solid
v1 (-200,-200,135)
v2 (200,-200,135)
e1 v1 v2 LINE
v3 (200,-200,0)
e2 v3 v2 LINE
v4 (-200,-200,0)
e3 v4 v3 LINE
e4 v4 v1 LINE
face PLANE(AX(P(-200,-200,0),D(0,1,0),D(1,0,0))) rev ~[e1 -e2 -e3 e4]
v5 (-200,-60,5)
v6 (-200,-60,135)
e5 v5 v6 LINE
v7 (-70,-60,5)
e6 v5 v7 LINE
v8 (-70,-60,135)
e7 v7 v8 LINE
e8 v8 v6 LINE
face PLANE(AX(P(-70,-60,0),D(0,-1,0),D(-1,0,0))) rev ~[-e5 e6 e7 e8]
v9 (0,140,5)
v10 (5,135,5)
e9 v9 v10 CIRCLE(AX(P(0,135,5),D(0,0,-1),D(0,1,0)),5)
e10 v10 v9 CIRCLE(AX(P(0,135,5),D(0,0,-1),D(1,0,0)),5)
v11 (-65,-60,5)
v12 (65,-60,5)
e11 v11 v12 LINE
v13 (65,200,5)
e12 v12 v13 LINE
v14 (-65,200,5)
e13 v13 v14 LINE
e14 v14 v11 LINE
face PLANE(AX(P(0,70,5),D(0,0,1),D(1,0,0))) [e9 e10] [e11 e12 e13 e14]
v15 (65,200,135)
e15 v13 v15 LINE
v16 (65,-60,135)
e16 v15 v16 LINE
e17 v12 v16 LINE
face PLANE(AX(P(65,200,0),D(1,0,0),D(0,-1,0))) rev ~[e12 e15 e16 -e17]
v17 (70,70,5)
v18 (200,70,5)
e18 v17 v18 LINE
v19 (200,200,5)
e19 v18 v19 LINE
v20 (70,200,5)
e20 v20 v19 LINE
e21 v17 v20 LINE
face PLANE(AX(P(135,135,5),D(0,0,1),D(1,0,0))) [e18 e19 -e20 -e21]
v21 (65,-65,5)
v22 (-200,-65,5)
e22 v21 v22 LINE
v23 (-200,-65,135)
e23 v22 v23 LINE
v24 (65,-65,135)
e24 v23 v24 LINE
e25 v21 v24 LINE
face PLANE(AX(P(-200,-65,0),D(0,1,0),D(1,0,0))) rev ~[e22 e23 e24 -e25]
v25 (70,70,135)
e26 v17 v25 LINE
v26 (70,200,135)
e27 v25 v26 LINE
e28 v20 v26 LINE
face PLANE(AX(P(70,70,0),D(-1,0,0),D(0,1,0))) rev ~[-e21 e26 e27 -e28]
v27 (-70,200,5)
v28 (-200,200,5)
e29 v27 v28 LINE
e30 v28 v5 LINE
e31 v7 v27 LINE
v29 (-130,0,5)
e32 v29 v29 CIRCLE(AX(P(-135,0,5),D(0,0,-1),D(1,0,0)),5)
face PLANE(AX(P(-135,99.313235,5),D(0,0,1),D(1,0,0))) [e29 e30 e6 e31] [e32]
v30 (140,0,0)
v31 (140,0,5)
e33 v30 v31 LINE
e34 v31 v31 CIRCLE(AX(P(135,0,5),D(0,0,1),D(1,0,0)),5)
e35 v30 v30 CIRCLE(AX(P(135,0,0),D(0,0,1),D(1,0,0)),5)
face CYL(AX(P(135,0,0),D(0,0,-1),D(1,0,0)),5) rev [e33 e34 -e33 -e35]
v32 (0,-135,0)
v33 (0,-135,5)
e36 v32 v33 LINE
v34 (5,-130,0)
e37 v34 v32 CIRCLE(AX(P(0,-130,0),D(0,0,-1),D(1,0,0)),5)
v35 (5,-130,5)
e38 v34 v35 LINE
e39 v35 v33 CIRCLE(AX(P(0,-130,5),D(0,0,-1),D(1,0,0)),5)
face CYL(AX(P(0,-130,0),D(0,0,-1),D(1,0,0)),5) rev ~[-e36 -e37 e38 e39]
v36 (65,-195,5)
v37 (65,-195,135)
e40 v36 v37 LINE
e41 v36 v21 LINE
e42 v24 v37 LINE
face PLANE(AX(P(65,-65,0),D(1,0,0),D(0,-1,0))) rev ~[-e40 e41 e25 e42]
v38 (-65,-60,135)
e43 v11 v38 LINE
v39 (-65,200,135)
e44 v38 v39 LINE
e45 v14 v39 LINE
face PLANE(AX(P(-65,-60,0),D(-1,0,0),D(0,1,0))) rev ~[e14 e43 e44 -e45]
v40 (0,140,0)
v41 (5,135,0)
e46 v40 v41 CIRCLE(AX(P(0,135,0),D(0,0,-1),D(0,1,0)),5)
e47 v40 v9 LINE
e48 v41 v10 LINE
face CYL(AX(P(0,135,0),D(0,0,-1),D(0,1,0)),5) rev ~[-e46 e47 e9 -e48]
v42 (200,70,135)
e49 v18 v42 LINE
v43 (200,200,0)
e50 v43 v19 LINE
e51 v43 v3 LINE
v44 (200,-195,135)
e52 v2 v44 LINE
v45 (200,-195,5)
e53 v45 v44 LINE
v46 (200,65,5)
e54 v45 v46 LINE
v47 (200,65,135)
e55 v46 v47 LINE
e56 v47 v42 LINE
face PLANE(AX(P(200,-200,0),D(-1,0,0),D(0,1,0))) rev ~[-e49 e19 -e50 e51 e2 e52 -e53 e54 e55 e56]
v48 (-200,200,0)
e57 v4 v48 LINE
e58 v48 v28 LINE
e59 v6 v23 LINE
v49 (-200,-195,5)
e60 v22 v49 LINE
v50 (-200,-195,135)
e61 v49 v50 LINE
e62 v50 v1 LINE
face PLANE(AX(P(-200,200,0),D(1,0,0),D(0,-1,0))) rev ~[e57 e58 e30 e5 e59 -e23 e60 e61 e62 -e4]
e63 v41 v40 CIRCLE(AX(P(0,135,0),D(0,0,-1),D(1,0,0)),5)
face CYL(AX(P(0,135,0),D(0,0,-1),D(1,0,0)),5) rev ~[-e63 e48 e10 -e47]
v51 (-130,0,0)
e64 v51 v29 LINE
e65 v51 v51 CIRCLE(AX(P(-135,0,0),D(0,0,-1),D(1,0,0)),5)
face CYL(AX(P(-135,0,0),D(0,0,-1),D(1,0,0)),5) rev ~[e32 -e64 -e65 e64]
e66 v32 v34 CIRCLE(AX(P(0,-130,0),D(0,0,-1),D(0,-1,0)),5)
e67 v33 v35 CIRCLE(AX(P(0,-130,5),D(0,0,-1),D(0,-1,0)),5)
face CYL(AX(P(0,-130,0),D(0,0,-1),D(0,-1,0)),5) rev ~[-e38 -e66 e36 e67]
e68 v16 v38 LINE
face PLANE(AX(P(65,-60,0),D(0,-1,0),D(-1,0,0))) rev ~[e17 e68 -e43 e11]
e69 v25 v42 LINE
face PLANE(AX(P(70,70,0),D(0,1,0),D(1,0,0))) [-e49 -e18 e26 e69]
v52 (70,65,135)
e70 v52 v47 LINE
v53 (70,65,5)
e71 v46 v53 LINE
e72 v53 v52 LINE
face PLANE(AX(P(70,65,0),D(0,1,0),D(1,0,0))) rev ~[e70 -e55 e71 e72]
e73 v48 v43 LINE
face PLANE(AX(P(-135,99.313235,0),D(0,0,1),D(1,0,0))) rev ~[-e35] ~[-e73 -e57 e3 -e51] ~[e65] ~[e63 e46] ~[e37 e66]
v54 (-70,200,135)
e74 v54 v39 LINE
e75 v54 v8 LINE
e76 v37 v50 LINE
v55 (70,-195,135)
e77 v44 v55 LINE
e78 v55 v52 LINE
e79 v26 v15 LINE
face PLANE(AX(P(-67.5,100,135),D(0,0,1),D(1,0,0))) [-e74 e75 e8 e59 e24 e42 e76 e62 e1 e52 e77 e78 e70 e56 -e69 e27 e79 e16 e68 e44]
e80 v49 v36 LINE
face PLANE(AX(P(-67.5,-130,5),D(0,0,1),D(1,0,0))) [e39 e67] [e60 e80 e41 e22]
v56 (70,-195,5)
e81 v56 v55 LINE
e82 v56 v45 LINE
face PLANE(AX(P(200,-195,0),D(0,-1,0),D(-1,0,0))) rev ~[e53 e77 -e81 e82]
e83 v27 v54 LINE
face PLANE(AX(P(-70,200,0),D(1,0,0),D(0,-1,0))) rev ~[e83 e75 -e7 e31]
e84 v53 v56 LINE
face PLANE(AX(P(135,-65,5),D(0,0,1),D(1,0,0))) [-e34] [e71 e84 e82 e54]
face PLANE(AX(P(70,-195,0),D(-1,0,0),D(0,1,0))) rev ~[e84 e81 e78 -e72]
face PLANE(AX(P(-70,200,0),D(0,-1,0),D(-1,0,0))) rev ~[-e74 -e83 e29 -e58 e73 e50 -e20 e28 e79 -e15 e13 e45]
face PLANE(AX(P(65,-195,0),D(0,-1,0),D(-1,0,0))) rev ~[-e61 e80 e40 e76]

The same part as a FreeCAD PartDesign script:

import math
import FreeCAD as App
import Part
import Sketcher


def add_polygon(sketch, points):
    """Adds a closed chain of lines whose ends are joined by coincident constraints."""
    first, n = sketch.GeometryCount, len(points)
    for a, b in zip(points, points[1:] + points[:1]):
        sketch.addGeometry(Part.LineSegment(App.Vector(*a, 0), App.Vector(*b, 0)), False)
    for i in range(n):
        sketch.addConstraint(Sketcher.Constraint("Coincident", first + i, 2, first + (i + 1) % n, 1))

doc = App.newDocument("Part")
body = doc.addObject("PartDesign::Body", "Body")

sketch1 = doc.addObject("Sketcher::SketchObject", "Sketch")
body.addObject(sketch1)
sketch1.AttachmentSupport = (doc.XY_Plane, [""])
sketch1.MapMode = "FlatFace"
add_polygon(sketch1, [(-70, 200), (-70, -60), (-200, -60), (-200, -65), (65, -65), (65, -195), (-200, -195), (-200, -200), (200, -200), (200, -195), (70, -195), (70, 65), (200, 65), (200, 70), (70, 70), (70, 200), (65, 200), (65, -60), (-65, -60), (-65, 200)])
sketch1.addConstraint([
    Sketcher.Constraint("Vertical", 0),
    Sketcher.Constraint("Horizontal", 1),
    Sketcher.Constraint("Vertical", 2),
    Sketcher.Constraint("Horizontal", 3),
    Sketcher.Constraint("Vertical", 4),
    Sketcher.Constraint("Horizontal", 5),
    Sketcher.Constraint("Vertical", 6),
    Sketcher.Constraint("Horizontal", 7),
    Sketcher.Constraint("Vertical", 8),
    Sketcher.Constraint("Horizontal", 9),
    Sketcher.Constraint("Vertical", 10),
    Sketcher.Constraint("Horizontal", 11),
    Sketcher.Constraint("Vertical", 12),
    Sketcher.Constraint("Horizontal", 13),
    Sketcher.Constraint("Vertical", 14),
    Sketcher.Constraint("Horizontal", 15),
    Sketcher.Constraint("Vertical", 16),
    Sketcher.Constraint("Horizontal", 17),
    Sketcher.Constraint("Vertical", 18),
    Sketcher.Constraint("Horizontal", 19),
    Sketcher.Constraint("Symmetric", 2, 2, 11, 2, -1, 1),
    Sketcher.Constraint("Symmetric", 5, 2, 8, 2, -2),
    Sketcher.Constraint("Symmetric", 15, 2, 18, 2, -2),
    Sketcher.Constraint("Horizontal", 1, 2, 16, 2),
    Sketcher.Constraint("Vertical", 2, 2, 5, 2),
    Sketcher.Constraint("Vertical", 10, 2, 13, 2),
    Sketcher.Constraint("Vertical", 4, 2, 15, 2),
    Sketcher.Constraint("Equal", 1, 9),
    Sketcher.Constraint("Equal", 13, 17),
    Sketcher.Constraint("Equal", 19, 2),
    Sketcher.Constraint("Equal", 17, 4),
    Sketcher.Constraint("Equal", 2, 6),
    Sketcher.Constraint("Equal", 0, 10),
    Sketcher.Constraint("Equal", 8, 12),
    Sketcher.Constraint("DistanceX", 1, 2, 1, 1, 130.0),
    Sketcher.Constraint("DistanceX", 3, 1, 3, 2, 265.0),
    Sketcher.Constraint("DistanceY", 0, 2, 0, 1, 260.0),
])
pad1 = doc.addObject("PartDesign::Pad", "Pad")
body.addObject(pad1)
pad1.Profile = sketch1
pad1.Length = 135

sketch2 = doc.addObject("Sketcher::SketchObject", "Sketch001")
body.addObject(sketch2)
sketch2.AttachmentSupport = (doc.XY_Plane, [""])
sketch2.MapMode = "FlatFace"
add_polygon(sketch2, [(-70, 200), (-200, 200), (-200, -60), (-70, -60)])
sketch2.addGeometry(Part.Circle(App.Vector(-135, 0, 0), App.Vector(0, 0, 1), 5), False)
add_polygon(sketch2, [(65, -65), (-200, -65), (-200, -195), (65, -195)])
sketch2.addGeometry(Part.ArcOfCircle(Part.Circle(App.Vector(0, -130, 0), App.Vector(0, 0, 1), 5), math.radians(0), math.radians(270)), False)
sketch2.addGeometry(Part.ArcOfCircle(Part.Circle(App.Vector(0, -130, 0), App.Vector(0, 0, 1), 5), math.radians(-90), math.radians(0)), False)
add_polygon(sketch2, [(-65, 200), (-65, -60), (65, -60), (65, 200)])
sketch2.addGeometry(Part.ArcOfCircle(Part.Circle(App.Vector(0, 135, 0), App.Vector(0, 0, 1), 5), math.radians(0), math.radians(90)), False)
sketch2.addGeometry(Part.ArcOfCircle(Part.Circle(App.Vector(0, 135, 0), App.Vector(0, 0, 1), 5), math.radians(90), math.radians(360)), False)
add_polygon(sketch2, [(70, 65), (70, -195), (200, -195), (200, 65)])
sketch2.addGeometry(Part.Circle(App.Vector(135, 0, 0), App.Vector(0, 0, 1), 5), False)
add_polygon(sketch2, [(70, 200), (70, 70), (200, 70), (200, 200)])
sketch2.addConstraint([
    Sketcher.Constraint("Tangent", 9, 1, 10, 2),
    Sketcher.Constraint("Coincident", 10, 1, 9, 2),
    Sketcher.Constraint("Tangent", 15, 1, 16, 2),
    Sketcher.Constraint("Coincident", 16, 1, 15, 2),
    Sketcher.Constraint("Horizontal", 0),
    Sketcher.Constraint("Vertical", 1),
    Sketcher.Constraint("Horizontal", 2),
    Sketcher.Constraint("Vertical", 3),
    Sketcher.Constraint("Horizontal", 5),
    Sketcher.Constraint("Vertical", 6),
    Sketcher.Constraint("Horizontal", 7),
    Sketcher.Constraint("Vertical", 8),
    Sketcher.Constraint("Vertical", 11),
    Sketcher.Constraint("Horizontal", 12),
    Sketcher.Constraint("Vertical", 13),
    Sketcher.Constraint("Horizontal", 14),
    Sketcher.Constraint("Vertical", 17),
    Sketcher.Constraint("Horizontal", 18),
    Sketcher.Constraint("Vertical", 19),
    Sketcher.Constraint("Horizontal", 20),
    Sketcher.Constraint("Vertical", 22),
    Sketcher.Constraint("Horizontal", 23),
    Sketcher.Constraint("Vertical", 24),
    Sketcher.Constraint("Horizontal", 25),
    Sketcher.Constraint("Equal", 4, 9),
    Sketcher.Constraint("Equal", 10, 15),
    Sketcher.Constraint("Equal", 16, 21),
    Sketcher.Constraint("Symmetric", 4, 3, 21, 3, -1, 1),
    Sketcher.Constraint("Symmetric", 5, 2, 19, 2, -1, 1),
    Sketcher.Constraint("Symmetric", 0, 2, 24, 2, -2),
    Sketcher.Constraint("PointOnObject", 4, 3, -1),
    Sketcher.Constraint("PointOnObject", 9, 3, -2),
    Sketcher.Constraint("PointOnObject", 15, 3, -2),
    Sketcher.Constraint("PointOnObject", 10, 1, -2),
    Sketcher.Constraint("PointOnObject", 16, 1, -2),
    Sketcher.Constraint("Horizontal", 10, 3, 9, 1),
    Sketcher.Constraint("Horizontal", 2, 2, 11, 2),
    Sketcher.Constraint("Horizontal", 3, 2, 13, 2),
    Sketcher.Constraint("Horizontal", 16, 3, 15, 1),
    Sketcher.Constraint("Horizontal", 7, 2, 17, 2),
    Sketcher.Constraint("Vertical", 1, 2, 5, 2),
    Sketcher.Constraint("Vertical", 8, 2, 12, 2),
    Sketcher.Constraint("Vertical", 20, 2, 22, 2),
    Sketcher.Constraint("Equal", 2, 12),
    Sketcher.Constraint("Equal", 14, 18),
    Sketcher.Constraint("Equal", 25, 6),
    Sketcher.Constraint("Equal", 13, 17),
    Sketcher.Constraint("Equal", 8, 22),
    Sketcher.Constraint("Diameter", 4, 10.0),
    Sketcher.Constraint("DistanceX", 0, 2, 0, 1, 130.0),
    Sketcher.Constraint("DistanceX", 5, 2, 5, 1, 265.0),
    Sketcher.Constraint("DistanceY", 1, 2, 1, 1, 260.0),
    Sketcher.Constraint("DistanceX", 4, 3, -1, 1, 135.0),
    Sketcher.Constraint("DistanceY", 9, 3, -1, 1, 130.0),
    Sketcher.Constraint("DistanceY", -1, 1, 15, 3, 135.0),
    Sketcher.Constraint("DistanceX", 0, 2, -1, 1, 200.0),
    Sketcher.Constraint("DistanceY", -1, 1, 0, 2, 200.0),
])
pad2 = doc.addObject("PartDesign::Pad", "Pad001")
body.addObject(pad2)
pad2.Profile = sketch2
pad2.Length = 5

doc.recompute()
